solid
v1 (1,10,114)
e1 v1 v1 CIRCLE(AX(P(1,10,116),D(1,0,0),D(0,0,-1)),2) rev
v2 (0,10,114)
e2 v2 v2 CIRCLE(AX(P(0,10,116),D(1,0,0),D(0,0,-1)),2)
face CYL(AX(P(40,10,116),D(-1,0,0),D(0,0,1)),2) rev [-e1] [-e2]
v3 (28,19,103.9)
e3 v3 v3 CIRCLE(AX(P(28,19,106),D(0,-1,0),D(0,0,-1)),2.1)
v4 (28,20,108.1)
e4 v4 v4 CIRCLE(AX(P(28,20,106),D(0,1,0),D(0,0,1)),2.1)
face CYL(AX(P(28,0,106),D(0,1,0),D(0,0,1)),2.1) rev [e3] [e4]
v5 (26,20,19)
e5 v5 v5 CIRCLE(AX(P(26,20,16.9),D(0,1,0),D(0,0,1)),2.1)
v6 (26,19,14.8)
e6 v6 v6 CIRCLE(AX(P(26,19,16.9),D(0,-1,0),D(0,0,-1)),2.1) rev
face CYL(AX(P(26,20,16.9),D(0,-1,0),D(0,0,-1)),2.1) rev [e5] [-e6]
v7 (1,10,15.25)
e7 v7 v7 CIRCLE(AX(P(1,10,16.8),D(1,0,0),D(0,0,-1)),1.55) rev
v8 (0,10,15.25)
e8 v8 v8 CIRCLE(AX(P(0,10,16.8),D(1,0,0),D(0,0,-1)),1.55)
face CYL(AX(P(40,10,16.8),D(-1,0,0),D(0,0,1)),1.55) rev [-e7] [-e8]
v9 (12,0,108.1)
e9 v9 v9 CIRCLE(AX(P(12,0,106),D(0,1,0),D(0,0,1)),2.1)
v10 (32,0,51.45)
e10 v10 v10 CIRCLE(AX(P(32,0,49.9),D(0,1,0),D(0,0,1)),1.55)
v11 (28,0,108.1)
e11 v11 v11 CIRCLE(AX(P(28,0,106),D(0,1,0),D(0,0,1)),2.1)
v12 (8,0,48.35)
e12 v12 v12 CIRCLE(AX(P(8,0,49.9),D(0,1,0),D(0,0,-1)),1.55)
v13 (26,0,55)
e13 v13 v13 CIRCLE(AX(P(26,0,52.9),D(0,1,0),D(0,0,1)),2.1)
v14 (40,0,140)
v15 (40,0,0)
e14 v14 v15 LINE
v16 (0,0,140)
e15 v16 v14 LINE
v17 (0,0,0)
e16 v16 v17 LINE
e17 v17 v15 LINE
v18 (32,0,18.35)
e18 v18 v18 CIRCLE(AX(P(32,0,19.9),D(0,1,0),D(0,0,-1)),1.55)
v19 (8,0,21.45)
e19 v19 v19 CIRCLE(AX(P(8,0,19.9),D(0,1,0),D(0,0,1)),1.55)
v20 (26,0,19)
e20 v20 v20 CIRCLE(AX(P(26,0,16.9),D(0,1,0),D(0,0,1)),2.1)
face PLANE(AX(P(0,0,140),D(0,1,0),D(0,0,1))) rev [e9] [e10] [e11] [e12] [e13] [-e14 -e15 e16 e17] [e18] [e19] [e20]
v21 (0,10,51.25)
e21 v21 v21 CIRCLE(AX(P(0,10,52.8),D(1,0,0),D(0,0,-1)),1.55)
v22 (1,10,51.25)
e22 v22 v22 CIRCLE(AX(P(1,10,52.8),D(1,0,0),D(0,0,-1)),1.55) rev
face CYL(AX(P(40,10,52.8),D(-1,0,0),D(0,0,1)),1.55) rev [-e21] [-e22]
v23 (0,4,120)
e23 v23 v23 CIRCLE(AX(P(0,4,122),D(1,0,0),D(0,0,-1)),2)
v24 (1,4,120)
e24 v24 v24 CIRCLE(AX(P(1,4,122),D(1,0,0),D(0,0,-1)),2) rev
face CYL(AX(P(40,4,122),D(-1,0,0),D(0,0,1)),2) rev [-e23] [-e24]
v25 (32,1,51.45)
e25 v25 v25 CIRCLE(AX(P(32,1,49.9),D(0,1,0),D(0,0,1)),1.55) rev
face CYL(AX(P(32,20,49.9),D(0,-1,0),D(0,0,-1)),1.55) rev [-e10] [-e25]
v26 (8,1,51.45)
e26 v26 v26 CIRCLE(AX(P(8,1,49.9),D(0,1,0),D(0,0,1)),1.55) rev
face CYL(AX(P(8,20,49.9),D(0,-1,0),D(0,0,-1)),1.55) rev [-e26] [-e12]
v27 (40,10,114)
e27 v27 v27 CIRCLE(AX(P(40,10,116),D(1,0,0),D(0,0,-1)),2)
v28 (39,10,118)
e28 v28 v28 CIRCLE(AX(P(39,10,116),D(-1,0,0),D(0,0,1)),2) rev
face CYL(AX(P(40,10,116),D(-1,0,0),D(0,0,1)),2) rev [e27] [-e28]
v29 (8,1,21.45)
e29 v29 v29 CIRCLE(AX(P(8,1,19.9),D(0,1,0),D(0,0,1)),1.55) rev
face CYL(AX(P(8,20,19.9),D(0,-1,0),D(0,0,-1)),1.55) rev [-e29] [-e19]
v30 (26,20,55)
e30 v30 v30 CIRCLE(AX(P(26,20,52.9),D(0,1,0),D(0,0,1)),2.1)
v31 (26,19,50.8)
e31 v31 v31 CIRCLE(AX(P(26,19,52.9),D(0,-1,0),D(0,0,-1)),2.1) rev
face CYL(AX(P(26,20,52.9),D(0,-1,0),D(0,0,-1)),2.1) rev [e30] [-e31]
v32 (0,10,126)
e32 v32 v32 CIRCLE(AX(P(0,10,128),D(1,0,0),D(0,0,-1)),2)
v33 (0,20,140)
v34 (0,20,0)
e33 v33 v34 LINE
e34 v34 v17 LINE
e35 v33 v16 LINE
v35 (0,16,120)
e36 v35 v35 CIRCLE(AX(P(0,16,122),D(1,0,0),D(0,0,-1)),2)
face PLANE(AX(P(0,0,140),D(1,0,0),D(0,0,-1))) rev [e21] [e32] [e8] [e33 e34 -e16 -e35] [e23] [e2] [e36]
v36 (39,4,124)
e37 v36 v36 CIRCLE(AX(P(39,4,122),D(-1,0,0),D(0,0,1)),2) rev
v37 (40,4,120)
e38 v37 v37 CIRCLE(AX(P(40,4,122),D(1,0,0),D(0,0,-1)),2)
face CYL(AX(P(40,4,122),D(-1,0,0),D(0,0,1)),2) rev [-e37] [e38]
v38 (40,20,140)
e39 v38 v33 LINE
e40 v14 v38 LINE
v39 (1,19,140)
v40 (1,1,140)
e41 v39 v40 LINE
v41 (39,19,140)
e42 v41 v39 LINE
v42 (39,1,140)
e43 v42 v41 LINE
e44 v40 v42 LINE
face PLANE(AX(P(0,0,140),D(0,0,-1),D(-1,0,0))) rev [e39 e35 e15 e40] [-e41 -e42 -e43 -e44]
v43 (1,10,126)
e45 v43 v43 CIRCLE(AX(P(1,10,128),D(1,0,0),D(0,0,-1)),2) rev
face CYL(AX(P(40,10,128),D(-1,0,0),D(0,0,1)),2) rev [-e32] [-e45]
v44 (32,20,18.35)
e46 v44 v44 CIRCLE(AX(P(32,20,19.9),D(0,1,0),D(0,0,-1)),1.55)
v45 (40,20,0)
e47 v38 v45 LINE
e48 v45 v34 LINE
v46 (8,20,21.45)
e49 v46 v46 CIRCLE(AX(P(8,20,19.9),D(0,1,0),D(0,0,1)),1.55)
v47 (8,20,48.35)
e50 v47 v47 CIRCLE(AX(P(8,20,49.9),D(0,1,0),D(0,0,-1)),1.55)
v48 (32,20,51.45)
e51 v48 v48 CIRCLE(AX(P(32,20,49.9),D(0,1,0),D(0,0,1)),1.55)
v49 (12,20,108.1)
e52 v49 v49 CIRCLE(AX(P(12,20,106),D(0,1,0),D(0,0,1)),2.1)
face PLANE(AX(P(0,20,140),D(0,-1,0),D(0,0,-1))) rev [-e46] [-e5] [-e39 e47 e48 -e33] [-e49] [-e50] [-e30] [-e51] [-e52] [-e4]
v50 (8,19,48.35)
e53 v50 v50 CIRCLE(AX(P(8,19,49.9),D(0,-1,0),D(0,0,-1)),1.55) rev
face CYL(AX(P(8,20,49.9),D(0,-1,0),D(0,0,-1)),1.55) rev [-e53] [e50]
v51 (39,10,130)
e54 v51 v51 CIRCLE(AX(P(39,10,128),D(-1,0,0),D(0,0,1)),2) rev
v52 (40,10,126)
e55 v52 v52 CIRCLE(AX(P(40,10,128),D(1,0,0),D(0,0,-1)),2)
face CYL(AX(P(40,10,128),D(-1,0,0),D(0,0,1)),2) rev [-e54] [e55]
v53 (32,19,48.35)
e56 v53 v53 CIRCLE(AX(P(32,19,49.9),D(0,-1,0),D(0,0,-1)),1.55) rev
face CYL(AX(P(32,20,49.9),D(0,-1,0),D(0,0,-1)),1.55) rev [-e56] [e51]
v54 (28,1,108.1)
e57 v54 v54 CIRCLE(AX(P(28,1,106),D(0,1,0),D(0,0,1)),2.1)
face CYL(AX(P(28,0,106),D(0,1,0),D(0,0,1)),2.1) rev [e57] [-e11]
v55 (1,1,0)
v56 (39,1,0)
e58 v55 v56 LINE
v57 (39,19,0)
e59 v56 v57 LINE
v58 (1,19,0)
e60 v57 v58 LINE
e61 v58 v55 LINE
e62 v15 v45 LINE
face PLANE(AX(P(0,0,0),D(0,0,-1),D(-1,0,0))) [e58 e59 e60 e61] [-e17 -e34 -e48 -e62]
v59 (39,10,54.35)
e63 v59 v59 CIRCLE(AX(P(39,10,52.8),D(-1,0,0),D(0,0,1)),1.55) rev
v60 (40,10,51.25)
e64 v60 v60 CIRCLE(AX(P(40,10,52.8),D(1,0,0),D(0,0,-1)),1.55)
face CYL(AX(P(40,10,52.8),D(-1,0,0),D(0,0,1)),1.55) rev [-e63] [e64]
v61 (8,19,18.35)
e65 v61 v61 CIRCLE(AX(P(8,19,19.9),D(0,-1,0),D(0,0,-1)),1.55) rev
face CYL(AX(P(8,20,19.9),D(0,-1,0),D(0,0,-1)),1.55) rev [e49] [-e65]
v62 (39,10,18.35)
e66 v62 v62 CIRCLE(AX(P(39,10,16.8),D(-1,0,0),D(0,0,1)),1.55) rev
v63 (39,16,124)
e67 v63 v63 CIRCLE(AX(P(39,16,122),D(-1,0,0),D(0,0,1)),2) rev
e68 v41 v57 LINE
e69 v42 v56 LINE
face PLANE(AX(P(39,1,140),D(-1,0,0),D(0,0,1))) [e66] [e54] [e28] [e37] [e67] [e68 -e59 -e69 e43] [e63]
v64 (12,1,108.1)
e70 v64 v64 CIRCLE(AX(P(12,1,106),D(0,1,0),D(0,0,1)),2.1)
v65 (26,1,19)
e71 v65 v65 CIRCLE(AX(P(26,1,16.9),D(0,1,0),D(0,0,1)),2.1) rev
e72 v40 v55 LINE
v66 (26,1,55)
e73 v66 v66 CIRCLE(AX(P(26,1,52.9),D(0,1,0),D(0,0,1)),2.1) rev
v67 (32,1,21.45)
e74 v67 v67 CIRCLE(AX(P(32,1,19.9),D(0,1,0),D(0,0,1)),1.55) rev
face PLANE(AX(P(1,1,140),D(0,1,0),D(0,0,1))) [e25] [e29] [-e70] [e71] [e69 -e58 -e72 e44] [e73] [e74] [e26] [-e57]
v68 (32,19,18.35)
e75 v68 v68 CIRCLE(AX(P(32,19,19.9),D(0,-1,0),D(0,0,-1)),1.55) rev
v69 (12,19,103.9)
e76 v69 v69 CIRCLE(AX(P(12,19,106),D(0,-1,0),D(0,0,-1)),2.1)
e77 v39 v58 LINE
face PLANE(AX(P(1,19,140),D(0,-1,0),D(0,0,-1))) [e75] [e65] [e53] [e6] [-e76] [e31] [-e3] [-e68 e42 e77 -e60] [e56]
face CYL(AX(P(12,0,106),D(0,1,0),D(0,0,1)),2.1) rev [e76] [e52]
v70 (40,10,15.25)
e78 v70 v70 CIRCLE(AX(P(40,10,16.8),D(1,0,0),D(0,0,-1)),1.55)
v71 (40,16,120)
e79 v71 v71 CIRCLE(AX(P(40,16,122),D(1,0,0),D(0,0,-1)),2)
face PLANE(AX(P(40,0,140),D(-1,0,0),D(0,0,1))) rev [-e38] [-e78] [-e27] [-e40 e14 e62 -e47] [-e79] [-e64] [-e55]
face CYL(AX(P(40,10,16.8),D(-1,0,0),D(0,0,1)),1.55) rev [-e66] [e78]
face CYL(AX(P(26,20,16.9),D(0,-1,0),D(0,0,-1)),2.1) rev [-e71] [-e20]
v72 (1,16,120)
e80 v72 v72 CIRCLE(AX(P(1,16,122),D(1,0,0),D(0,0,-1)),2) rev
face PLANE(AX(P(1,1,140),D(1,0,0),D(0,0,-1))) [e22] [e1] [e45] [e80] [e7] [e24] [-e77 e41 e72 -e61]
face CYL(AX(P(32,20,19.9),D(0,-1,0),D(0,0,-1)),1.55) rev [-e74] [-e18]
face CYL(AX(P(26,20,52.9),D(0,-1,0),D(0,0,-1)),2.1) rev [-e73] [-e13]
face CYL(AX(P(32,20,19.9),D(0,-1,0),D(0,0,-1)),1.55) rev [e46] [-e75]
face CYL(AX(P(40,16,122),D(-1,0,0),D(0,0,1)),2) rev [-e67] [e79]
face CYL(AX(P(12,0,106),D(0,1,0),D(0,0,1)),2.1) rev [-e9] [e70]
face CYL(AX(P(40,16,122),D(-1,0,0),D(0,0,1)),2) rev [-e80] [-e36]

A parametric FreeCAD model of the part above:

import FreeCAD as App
import Part
import Sketcher
from FreeCAD import Vector


def add_polygon(sketch, points):
    """Adds a closed chain of lines whose ends are joined by coincident constraints."""
    first, n = sketch.GeometryCount, len(points)
    for a, b in zip(points, points[1:] + points[:1]):
        sketch.addGeometry(Part.LineSegment(App.Vector(*a, 0), App.Vector(*b, 0)), False)
    for i in range(n):
        sketch.addConstraint(Sketcher.Constraint("Coincident", first + i, 2, first + (i + 1) % n, 1))

doc = App.newDocument("Part")
body = doc.addObject("PartDesign::Body", "Body")

# Sketch on XY plane
sketch1 = body.newObject("Sketcher::SketchObject", "Sketch")
sketch1.AttachmentSupport = (doc.getObject("XY_Plane"), [""])
sketch1.MapMode = "FlatFace"
add_polygon(sketch1, [(0, 20), (0, 0), (40, 0), (40, 20)])  # lines 0-3
add_polygon(sketch1, [(39, 1), (1, 1), (1, 19), (39, 19)])  # lines 4-7
sketch1.addConstraint([
    Sketcher.Constraint("Vertical", 0),
    Sketcher.Constraint("Horizontal", 1),
    Sketcher.Constraint("Vertical", 2),
    Sketcher.Constraint("Horizontal", 3),
    Sketcher.Constraint("Horizontal", 4),
    Sketcher.Constraint("Vertical", 5),
    Sketcher.Constraint("Horizontal", 6),
    Sketcher.Constraint("Vertical", 7),
    Sketcher.Constraint("Coincident", 0, 2, -1, 1),
    Sketcher.Constraint("DistanceX", 1, 1, 1, 2, 40.0),
    Sketcher.Constraint("DistanceX", 4, 2, 4, 1, 38.0),
    Sketcher.Constraint("DistanceY", 0, 2, 0, 1, 20.0),
    Sketcher.Constraint("DistanceY", 5, 1, 5, 2, 18.0),
    Sketcher.Constraint("DistanceX", -1, 1, 4, 2, 1.0),
    Sketcher.Constraint("DistanceY", -1, 1, 4, 2, 1.0),
])
pad1 = body.newObject("PartDesign::Pad", "Pad")
pad1.Profile = sketch1
pad1.Length = 140

# Sketch on YZ plane
sketch2 = body.newObject("Sketcher::SketchObject", "Sketch001")
sketch2.AttachmentSupport = (doc.getObject("YZ_Plane"), [""])
sketch2.MapMode = "FlatFace"
sketch2.addGeometry([
    Part.Circle(Vector(10, 116, 0), Vector(0, 0, 1), 2),  # 0
    Part.Circle(Vector(10, 128, 0), Vector(0, 0, 1), 2),  # 1
    Part.Circle(Vector(10, 16.8, 0), Vector(0, 0, 1), 1.6),  # 2
    Part.Circle(Vector(10, 52.8, 0), Vector(0, 0, 1), 1.6),  # 3
    Part.Circle(Vector(16, 122, 0), Vector(0, 0, 1), 2),  # 4
    Part.Circle(Vector(4, 122, 0), Vector(0, 0, 1), 2),  # 5
], False)
sketch2.addConstraint([
    Sketcher.Constraint("Equal", 0, 1),
    Sketcher.Constraint("Equal", 2, 3),
    Sketcher.Constraint("Equal", 1, 4),
    Sketcher.Constraint("Equal", 4, 5),
    Sketcher.Constraint("Horizontal", 4, 3, 5, 3),
    Sketcher.Constraint("Vertical", 0, 3, 1, 3),
    Sketcher.Constraint("Vertical", 1, 3, 2, 3),
    Sketcher.Constraint("Vertical", 2, 3, 3, 3),
    Sketcher.Constraint("Diameter", 0, 4.0),
    Sketcher.Constraint("Diameter", 2, 3.1),
    Sketcher.Constraint("DistanceX", -1, 1, 0, 3, 10.0),
    Sketcher.Constraint("DistanceY", -1, 1, 0, 3, 116.0),
    Sketcher.Constraint("DistanceY", -1, 1, 1, 3, 128.0),
    Sketcher.Constraint("DistanceX", -1, 1, 4, 3, 16.0),
    Sketcher.Constraint("DistanceY", -1, 1, 4, 3, 122.0),
    Sketcher.Constraint("DistanceX", -1, 1, 5, 3, 4.0),
    Sketcher.Constraint("DistanceY", 2, 3, 3, 3, 36.0),
    Sketcher.Constraint("DistanceY", -1, 1, 2, 3, 16.8),
])
pocket1 = body.newObject("PartDesign::Pocket", "Pocket")
pocket1.Profile = sketch2
pocket1.Type = "ThroughAll"
pocket1.Reversed = True

# Sketch on XZ plane
sketch3 = body.newObject("Sketcher::SketchObject", "Sketch002")
sketch3.AttachmentSupport = (doc.getObject("XZ_Plane"), [""])
sketch3.MapMode = "FlatFace"
sketch3.addGeometry([
    Part.Circle(Vector(8, 19.9, 0), Vector(0, 0, 1), 1.6),  # 0
    Part.Circle(Vector(32, 19.9, 0), Vector(0, 0, 1), 1.6),  # 1
    Part.Circle(Vector(32, 49.9, 0), Vector(0, 0, 1), 1.6),  # 2
    Part.Circle(Vector(8, 49.9, 0), Vector(0, 0, 1), 1.6),  # 3
    Part.Circle(Vector(26, 16.9, 0), Vector(0, 0, 1), 2.1),  # 4
    Part.Circle(Vector(26, 52.9, 0), Vector(0, 0, 1), 2.1),  # 5
], False)
sketch3.addConstraint([
    Sketcher.Constraint("Equal", 0, 1),
    Sketcher.Constraint("Equal", 1, 2),
    Sketcher.Constraint("Equal", 2, 3),
    Sketcher.Constraint("Equal", 4, 5),
    Sketcher.Constraint("Horizontal", 0, 3, 1, 3),
    Sketcher.Constraint("Horizontal", 2, 3, 3, 3),
    Sketcher.Constraint("Vertical", 1, 3, 2, 3),
    Sketcher.Constraint("Vertical", 0, 3, 3, 3),
    Sketcher.Constraint("Vertical", 4, 3, 5, 3),
    Sketcher.Constraint("Diameter", 0, 3.1),
    Sketcher.Constraint("Diameter", 4, 4.2),
    Sketcher.Constraint("DistanceX", -1, 1, 0, 3, 8.0),
    Sketcher.Constraint("DistanceX", -1, 1, 1, 3, 32.0),
    Sketcher.Constraint("DistanceX", -1, 1, 4, 3, 26.0),
    Sketcher.Constraint("DistanceY", 1, 3, 2, 3, 30.0),
    Sketcher.Constraint("DistanceY", 4, 3, 1, 3, 3.0),
    Sketcher.Constraint("DistanceY", 2, 3, 5, 3, 3.0),
    Sketcher.Constraint("DistanceY", -1, 1, 0, 3, 19.9),
])
pocket2 = body.newObject("PartDesign::Pocket", "Pocket001")
pocket2.Profile = sketch3
pocket2.Type = "ThroughAll"

# Sketch on XZ plane
sketch4 = body.newObject("Sketcher::SketchObject", "Sketch003")
sketch4.AttachmentSupport = (doc.getObject("XZ_Plane"), [""])
sketch4.MapMode = "FlatFace"
sketch4.AttachmentOffset = App.Placement(Vector(0, 0, -20), App.Rotation())
sketch4.addGeometry([
    Part.Circle(Vector(28, 106, 0), Vector(0, 0, 1), 2.1),
    Part.Circle(Vector(12, 106, 0), Vector(0, 0, 1), 2.1),
], False)
sketch4.addConstraint([
    Sketcher.Constraint("Equal", 0, 1),
    Sketcher.Constraint("Horizontal", 0, 3, 1, 3),
    Sketcher.Constraint("Diameter", 0, 4.2),
    Sketcher.Constraint("DistanceX", -1, 1, 0, 3, 28.0),
    Sketcher.Constraint("DistanceY", -1, 1, 0, 3, 106.0),
    Sketcher.Constraint("DistanceX", -1, 1, 1, 3, 12.0),
])
pocket3 = body.newObject("PartDesign::Pocket", "Pocket002")
pocket3.Profile = sketch4
pocket3.Type = "ThroughAll"
pocket3.Reversed = True

doc.recompute()
